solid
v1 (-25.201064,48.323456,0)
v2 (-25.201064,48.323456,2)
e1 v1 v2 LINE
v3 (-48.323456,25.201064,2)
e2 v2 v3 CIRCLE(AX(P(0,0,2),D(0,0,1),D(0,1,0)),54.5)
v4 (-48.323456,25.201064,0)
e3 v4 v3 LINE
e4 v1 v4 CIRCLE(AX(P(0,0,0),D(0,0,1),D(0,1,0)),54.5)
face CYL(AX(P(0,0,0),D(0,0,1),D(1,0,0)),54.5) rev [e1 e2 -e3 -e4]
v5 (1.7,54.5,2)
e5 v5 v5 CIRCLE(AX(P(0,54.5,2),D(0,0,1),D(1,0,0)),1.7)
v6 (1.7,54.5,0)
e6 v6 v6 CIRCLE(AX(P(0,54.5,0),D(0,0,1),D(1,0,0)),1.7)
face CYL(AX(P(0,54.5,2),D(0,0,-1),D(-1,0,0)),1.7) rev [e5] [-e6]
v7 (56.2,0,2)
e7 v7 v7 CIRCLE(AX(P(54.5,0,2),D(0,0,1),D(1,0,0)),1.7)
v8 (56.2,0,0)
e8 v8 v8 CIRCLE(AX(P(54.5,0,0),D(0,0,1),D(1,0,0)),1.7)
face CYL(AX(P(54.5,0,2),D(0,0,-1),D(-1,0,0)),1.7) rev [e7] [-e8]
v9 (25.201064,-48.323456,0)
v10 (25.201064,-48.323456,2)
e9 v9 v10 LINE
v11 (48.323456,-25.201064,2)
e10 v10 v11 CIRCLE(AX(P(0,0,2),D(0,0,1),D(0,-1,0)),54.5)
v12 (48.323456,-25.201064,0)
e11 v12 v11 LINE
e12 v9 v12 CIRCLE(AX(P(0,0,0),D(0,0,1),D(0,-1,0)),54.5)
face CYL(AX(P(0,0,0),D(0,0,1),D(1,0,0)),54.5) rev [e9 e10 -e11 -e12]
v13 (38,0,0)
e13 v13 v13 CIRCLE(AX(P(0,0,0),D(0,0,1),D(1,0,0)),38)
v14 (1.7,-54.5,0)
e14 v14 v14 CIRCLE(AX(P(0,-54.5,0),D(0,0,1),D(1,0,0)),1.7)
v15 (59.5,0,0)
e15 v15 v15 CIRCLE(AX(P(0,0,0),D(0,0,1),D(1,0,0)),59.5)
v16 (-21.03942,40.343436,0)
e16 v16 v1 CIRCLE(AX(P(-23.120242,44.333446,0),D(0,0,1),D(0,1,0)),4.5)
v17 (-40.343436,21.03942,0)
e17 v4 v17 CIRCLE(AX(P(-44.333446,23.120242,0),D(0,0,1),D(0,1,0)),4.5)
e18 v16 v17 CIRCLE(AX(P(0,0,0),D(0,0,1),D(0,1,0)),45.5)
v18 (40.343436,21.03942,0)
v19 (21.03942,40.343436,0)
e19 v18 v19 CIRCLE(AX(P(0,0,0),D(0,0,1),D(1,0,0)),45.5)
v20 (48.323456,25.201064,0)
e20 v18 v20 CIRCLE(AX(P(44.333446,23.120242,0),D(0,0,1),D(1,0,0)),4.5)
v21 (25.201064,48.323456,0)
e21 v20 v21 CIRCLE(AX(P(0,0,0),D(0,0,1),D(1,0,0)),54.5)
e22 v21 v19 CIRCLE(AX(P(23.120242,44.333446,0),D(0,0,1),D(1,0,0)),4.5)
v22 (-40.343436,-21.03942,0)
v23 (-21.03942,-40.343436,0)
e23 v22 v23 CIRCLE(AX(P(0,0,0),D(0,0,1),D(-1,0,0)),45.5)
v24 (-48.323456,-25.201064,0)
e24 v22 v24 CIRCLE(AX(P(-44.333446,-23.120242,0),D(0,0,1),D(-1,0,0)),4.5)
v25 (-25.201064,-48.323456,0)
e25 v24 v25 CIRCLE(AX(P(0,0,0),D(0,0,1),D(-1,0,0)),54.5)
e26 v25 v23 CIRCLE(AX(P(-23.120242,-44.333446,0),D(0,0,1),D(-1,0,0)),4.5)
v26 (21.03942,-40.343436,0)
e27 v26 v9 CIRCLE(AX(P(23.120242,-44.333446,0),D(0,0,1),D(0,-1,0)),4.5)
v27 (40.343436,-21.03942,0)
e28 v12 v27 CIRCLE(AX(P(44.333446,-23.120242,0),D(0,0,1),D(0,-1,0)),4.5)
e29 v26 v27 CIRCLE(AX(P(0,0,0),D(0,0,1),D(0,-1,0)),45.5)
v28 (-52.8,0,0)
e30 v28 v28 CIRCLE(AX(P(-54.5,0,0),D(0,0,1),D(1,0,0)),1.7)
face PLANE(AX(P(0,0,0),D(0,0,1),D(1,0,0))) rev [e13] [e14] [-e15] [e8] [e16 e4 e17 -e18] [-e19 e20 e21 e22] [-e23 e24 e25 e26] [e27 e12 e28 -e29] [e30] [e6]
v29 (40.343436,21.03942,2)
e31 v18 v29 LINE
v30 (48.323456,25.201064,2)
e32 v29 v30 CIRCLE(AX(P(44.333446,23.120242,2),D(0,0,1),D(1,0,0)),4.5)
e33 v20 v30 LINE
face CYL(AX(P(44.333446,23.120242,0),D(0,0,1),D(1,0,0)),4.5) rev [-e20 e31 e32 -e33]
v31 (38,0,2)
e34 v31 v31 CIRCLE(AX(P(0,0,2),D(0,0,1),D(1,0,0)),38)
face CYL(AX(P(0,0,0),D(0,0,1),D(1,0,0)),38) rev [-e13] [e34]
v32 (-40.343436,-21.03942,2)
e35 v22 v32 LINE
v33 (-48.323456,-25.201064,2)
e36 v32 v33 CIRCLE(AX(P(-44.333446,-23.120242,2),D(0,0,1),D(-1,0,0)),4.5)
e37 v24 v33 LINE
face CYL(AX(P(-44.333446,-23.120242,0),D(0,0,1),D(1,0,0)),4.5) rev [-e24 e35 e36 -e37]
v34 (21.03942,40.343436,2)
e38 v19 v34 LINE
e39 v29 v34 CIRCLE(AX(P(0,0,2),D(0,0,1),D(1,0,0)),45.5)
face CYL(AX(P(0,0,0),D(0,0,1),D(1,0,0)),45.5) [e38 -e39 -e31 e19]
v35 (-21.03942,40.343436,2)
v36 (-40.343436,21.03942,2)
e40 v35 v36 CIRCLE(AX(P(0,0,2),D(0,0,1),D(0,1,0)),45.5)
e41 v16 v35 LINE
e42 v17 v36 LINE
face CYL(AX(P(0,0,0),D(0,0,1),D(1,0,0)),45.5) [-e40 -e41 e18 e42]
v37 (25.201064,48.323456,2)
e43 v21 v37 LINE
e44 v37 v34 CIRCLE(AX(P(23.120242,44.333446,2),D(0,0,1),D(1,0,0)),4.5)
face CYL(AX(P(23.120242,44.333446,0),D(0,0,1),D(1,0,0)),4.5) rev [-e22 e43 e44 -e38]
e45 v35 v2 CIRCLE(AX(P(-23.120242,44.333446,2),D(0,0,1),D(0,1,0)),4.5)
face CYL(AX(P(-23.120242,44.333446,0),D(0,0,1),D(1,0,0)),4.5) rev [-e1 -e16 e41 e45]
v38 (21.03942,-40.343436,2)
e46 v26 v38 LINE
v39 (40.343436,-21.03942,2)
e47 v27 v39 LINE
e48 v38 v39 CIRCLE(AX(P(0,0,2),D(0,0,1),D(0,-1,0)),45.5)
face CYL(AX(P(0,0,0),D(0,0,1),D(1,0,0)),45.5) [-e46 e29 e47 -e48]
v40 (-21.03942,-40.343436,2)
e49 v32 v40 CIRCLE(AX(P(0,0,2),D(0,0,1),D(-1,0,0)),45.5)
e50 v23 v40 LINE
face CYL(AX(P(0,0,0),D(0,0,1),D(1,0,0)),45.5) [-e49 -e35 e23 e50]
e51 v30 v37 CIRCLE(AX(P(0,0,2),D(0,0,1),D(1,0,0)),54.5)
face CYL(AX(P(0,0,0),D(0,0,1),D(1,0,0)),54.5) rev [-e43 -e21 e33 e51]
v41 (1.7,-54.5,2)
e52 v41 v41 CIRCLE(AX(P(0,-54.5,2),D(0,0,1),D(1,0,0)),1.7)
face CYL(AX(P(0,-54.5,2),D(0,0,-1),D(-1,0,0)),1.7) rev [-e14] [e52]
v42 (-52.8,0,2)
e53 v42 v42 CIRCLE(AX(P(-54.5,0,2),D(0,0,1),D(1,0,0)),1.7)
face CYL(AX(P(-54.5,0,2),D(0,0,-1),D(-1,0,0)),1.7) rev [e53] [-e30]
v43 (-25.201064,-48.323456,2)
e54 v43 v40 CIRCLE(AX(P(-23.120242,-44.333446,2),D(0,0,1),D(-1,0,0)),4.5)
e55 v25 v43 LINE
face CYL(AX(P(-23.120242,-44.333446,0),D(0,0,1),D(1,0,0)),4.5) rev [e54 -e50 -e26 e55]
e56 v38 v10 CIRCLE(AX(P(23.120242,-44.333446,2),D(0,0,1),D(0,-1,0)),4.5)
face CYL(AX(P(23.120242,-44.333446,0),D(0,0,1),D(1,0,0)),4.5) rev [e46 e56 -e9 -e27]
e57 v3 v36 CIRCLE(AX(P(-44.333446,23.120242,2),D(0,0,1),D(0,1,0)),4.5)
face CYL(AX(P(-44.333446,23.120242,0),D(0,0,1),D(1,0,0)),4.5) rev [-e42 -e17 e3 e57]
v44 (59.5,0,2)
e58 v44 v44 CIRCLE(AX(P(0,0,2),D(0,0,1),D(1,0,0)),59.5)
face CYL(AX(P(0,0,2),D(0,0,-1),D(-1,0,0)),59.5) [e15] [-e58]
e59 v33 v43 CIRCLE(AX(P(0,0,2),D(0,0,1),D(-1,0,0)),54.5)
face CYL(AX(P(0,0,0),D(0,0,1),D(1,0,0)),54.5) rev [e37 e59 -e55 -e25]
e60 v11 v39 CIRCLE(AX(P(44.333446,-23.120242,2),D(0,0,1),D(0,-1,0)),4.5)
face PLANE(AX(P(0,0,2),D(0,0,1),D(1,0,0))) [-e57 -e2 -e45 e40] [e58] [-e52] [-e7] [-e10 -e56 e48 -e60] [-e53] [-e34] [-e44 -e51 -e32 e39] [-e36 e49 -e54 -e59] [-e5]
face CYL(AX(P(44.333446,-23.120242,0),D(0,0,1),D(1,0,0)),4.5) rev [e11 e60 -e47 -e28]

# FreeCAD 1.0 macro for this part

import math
import FreeCAD as App
import Part
import Sketcher

doc = App.newDocument("Part")
body = doc.addObject("PartDesign::Body", "Body")

sketch1 = body.newObject("Sketcher::SketchObject", "Sketch")
sketch1.AttachmentSupport = (doc.getObject("XY_Plane"), [""])
sketch1.MapMode = "FlatFace"
sketch1.addGeometry([
    Part.Circle(App.Vector(0, 0, 0), App.Vector(0, 0, 1), 59.5),
    Part.Circle(App.Vector(0, -54.5, 0), App.Vector(0, 0, 1), 1.7),
    Part.Circle(App.Vector(-54.5, 0, 0), App.Vector(0, 0, 1), 1.7),
    Part.Circle(App.Vector(54.5, 0, 0), App.Vector(0, 0, 1), 1.7),
    Part.Circle(App.Vector(0, 54.5, 0), App.Vector(0, 0, 1), 1.7),
], False)
sketch1.addConstraint([
    Sketcher.Constraint("Coincident", 0, 3, -1, 1),
    Sketcher.Constraint("Equal", 1, 2),
    Sketcher.Constraint("Equal", 2, 3),
    Sketcher.Constraint("Equal", 3, 4),
    Sketcher.Constraint("Symmetric", 2, 3, 3, 3, -1, 1),
    Sketcher.Constraint("Symmetric", 1, 3, 4, 3, -1, 1),
    Sketcher.Constraint("PointOnObject", 1, 3, -2),
    Sketcher.Constraint("PointOnObject", 2, 3, -1),
    Sketcher.Constraint("Diameter", 0, 119.0),
    Sketcher.Constraint("Diameter", 1, 3.4),
    Sketcher.Constraint("DistanceX", 2, 3, 3, 3, 109.0),
    Sketcher.Constraint("DistanceY", 1, 3, 4, 3, 109.0),
])
pad1 = body.newObject("PartDesign::Pad", "Pad")
pad1.Profile = sketch1
pad1.Length = 2

sketch2 = body.newObject("Sketcher::SketchObject", "Sketch001")
sketch2.AttachmentSupport = (doc.getObject("XY_Plane"), [""])
sketch2.MapMode = "FlatFace"
sketch2.AttachmentOffset = App.Placement(App.Vector(0, 0, 2), App.Rotation())
sketch2.addGeometry(Part.Circle(App.Vector(0, 0, 0), App.Vector(0, 0, 1), 38), False)
sketch2.addConstraint([
    Sketcher.Constraint("Coincident", 0, 3, -1, 1),
    Sketcher.Constraint("Diameter", 0, 76.0),
])
pocket1 = body.newObject("PartDesign::Pocket", "Pocket")
pocket1.Profile = sketch2
pocket1.Length = 2

sketch3 = body.newObject("Sketcher::SketchObject", "Sketch002")
sketch3.AttachmentSupport = (doc.getObject("XY_Plane"), [""])
sketch3.MapMode = "FlatFace"
sketch3.AttachmentOffset = App.Placement(App.Vector(0, 0, 2), App.Rotation())
sketch3.addGeometry([
    Part.ArcOfCircle(Part.Circle(App.Vector(0, 0, 0), App.Vector(0, 0, 1), 45.5), math.radians(28), math.radians(62)),
    Part.ArcOfCircle(Part.Circle(App.Vector(44.3, 23.1, 0), App.Vector(0, 0, 1), 4.5), math.radians(-152), math.radians(28)),
    Part.ArcOfCircle(Part.Circle(App.Vector(0, 0, 0), App.Vector(0, 0, 1), 54.5), math.radians(28), math.radians(62)),
    Part.ArcOfCircle(Part.Circle(App.Vector(23.1, 44.3, 0), App.Vector(0, 0, 1), 4.5), math.radians(62), math.radians(242)),
], False)
sketch3.addConstraint([
    Sketcher.Constraint("Tangent", 0, 1, 1, 1),
    Sketcher.Constraint("Tangent", 1, 2, 2, 1),
    Sketcher.Constraint("Tangent", 2, 2, 3, 1),
    Sketcher.Constraint("Tangent", 3, 2, 0, 2),
    Sketcher.Constraint("Coincident", 0, 3, -1, 1),
    Sketcher.Constraint("Coincident", 2, 3, -1, 1),
    Sketcher.Constraint("Radius", 0, 45.5),
    Sketcher.Constraint("Radius", 1, 4.5),
    Sketcher.Constraint("DistanceY", -1, 1, 0, 1, 21.03942),
    Sketcher.Constraint("DistanceX", -1, 1, 3, 2, 21.03942),
])
pocket2 = body.newObject("PartDesign::Pocket", "Pocket001")
pocket2.Profile = sketch3
pocket2.Length = 2
doc.recompute()

polarpattern = body.newObject("PartDesign::PolarPattern", "PolarPattern")
polarpattern.Originals = [pocket2]
polarpattern.Axis = (doc.getObject("Z_Axis"), [""])
polarpattern.Angle = 360
polarpattern.Occurrences = 4
body.Tip = polarpattern

doc.recompute()
